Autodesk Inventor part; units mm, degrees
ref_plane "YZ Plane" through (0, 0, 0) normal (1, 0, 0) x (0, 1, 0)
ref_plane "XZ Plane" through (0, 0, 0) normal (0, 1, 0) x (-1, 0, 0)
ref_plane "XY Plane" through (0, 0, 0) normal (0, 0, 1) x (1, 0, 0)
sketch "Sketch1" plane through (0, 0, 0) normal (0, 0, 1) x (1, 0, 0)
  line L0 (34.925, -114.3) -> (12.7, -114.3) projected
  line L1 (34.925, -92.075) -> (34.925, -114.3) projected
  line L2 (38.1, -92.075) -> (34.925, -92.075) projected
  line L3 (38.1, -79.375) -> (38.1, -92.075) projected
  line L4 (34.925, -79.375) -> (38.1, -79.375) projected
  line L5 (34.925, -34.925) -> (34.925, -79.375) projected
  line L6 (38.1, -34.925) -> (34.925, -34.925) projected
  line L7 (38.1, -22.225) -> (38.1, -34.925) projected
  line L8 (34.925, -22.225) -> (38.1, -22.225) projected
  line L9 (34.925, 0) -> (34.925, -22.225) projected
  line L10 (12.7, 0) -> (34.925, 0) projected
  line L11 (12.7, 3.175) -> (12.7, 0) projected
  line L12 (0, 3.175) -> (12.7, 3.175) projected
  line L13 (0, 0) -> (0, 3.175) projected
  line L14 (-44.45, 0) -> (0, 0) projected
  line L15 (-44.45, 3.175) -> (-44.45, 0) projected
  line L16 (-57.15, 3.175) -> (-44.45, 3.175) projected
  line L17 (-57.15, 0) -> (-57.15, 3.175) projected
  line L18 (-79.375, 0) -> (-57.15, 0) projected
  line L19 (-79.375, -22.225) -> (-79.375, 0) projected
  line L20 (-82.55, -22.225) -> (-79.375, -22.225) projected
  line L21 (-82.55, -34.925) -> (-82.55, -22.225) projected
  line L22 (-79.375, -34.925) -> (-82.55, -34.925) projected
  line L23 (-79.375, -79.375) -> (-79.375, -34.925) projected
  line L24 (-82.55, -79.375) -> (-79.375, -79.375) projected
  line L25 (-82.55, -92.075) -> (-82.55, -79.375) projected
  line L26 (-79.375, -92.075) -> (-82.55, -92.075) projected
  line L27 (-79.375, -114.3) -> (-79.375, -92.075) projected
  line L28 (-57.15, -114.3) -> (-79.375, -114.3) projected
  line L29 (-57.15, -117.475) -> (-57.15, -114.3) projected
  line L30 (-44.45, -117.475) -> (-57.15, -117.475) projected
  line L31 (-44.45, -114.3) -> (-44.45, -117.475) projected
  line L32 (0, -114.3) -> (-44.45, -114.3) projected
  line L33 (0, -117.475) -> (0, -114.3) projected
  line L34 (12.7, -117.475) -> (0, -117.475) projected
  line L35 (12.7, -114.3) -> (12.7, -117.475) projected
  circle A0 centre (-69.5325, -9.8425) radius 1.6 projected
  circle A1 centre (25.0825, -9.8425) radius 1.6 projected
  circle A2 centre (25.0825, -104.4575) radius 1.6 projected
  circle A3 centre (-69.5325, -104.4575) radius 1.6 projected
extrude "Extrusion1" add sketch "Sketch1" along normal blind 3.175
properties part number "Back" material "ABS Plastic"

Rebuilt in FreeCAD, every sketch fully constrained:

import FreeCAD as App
import Part
import Sketcher

V = App.Vector
Q = App.Units.Quantity


def add_polygon(sketch, points):
    """Adds a closed chain of lines whose ends are joined by coincident constraints."""
    first, n = sketch.GeometryCount, len(points)
    for a, b in zip(points, points[1:] + points[:1]):
        sketch.addGeometry(Part.LineSegment(App.Vector(*a, 0), App.Vector(*b, 0)), False)
    for i in range(n):
        sketch.addConstraint(Sketcher.Constraint("Coincident", first + i, 2, first + (i + 1) % n, 1))

doc = App.newDocument("Part")
body = doc.addObject("PartDesign::Body", "Body")

# Sketch on XY plane
sketch1 = body.newObject("Sketcher::SketchObject", "Sketch")
sketch1.AttachmentSupport = (doc.getObject("XY_Plane"), [""])
sketch1.MapMode = "FlatFace"
add_polygon(sketch1, [(12.7, -114.3), (34.9, -114.3), (34.9, -92.1), (38.1, -92.1), (38.1, -79.4), (34.9, -79.4), (34.9, -34.9), (38.1, -34.9), (38.1, -22.2), (34.9, -22.2), (34.9, 0), (12.7, 0), (12.7, 3.2), (0, 3.2), (0, 0), (-44.5, 0), (-44.5, 3.2), (-57.1, 3.2), (-57.1, 0), (-79.4, 0), (-79.4, -22.2), (-82.5, -22.2), (-82.5, -34.9), (-79.4, -34.9), (-79.4, -79.4), (-82.5, -79.4), (-82.5, -92.1), (-79.4, -92.1), (-79.4, -114.3), (-57.1, -114.3), (-57.1, -117.5), (-44.5, -117.5), (-44.5, -114.3), (0, -114.3), (0, -117.5), (12.7, -117.5)])  # lines 0-35
sketch1.addGeometry(Part.Circle(V(-69.5, -104.5, 0), V(0, 0, 1), 1.6), False)  # 36
sketch1.addGeometry(Part.Circle(V(25.1, -104.5, 0), V(0, 0, 1), 1.6), False)  # 37
sketch1.addGeometry(Part.Circle(V(-69.5, -9.8, 0), V(0, 0, 1), 1.6), False)  # 38
sketch1.addGeometry(Part.Circle(V(25.1, -9.8, 0), V(0, 0, 1), 1.6), False)  # 39
sketch1.addConstraint(Sketcher.Constraint("Horizontal", 0))
sketch1.addConstraint(Sketcher.Constraint("Vertical", 1))
sketch1.addConstraint(Sketcher.Constraint("Horizontal", 2))
sketch1.addConstraint(Sketcher.Constraint("Vertical", 3))
sketch1.addConstraint(Sketcher.Constraint("Horizontal", 4))
sketch1.addConstraint(Sketcher.Constraint("Vertical", 5))
sketch1.addConstraint(Sketcher.Constraint("Horizontal", 6))
sketch1.addConstraint(Sketcher.Constraint("Vertical", 7))
sketch1.addConstraint(Sketcher.Constraint("Horizontal", 8))
sketch1.addConstraint(Sketcher.Constraint("Vertical", 9))
sketch1.addConstraint(Sketcher.Constraint("Horizontal", 10))
sketch1.addConstraint(Sketcher.Constraint("Vertical", 11))
sketch1.addConstraint(Sketcher.Constraint("Horizontal", 12))
sketch1.addConstraint(Sketcher.Constraint("Vertical", 13))
sketch1.addConstraint(Sketcher.Constraint("Horizontal", 14))
sketch1.addConstraint(Sketcher.Constraint("Vertical", 15))
sketch1.addConstraint(Sketcher.Constraint("Horizontal", 16))
sketch1.addConstraint(Sketcher.Constraint("Vertical", 17))
sketch1.addConstraint(Sketcher.Constraint("Horizontal", 18))
sketch1.addConstraint(Sketcher.Constraint("Vertical", 19))
sketch1.addConstraint(Sketcher.Constraint("Horizontal", 20))
sketch1.addConstraint(Sketcher.Constraint("Vertical", 21))
sketch1.addConstraint(Sketcher.Constraint("Horizontal", 22))
sketch1.addConstraint(Sketcher.Constraint("Vertical", 23))
sketch1.addConstraint(Sketcher.Constraint("Horizontal", 24))
sketch1.addConstraint(Sketcher.Constraint("Vertical", 25))
sketch1.addConstraint(Sketcher.Constraint("Horizontal", 26))
sketch1.addConstraint(Sketcher.Constraint("Vertical", 27))
sketch1.addConstraint(Sketcher.Constraint("Horizontal", 28))
sketch1.addConstraint(Sketcher.Constraint("Vertical", 29))
sketch1.addConstraint(Sketcher.Constraint("Horizontal", 30))
sketch1.addConstraint(Sketcher.Constraint("Vertical", 31))
sketch1.addConstraint(Sketcher.Constraint("Horizontal", 32))
sketch1.addConstraint(Sketcher.Constraint("Vertical", 33))
sketch1.addConstraint(Sketcher.Constraint("Horizontal", 34))
sketch1.addConstraint(Sketcher.Constraint("Vertical", 35))
sketch1.addConstraint(Sketcher.Constraint("Coincident", 13, 2, -1, 1))
sketch1.addConstraint(Sketcher.Constraint("Equal", 36, 37))
sketch1.addConstraint(Sketcher.Constraint("Equal", 37, 38))
sketch1.addConstraint(Sketcher.Constraint("Equal", 38, 39))
sketch1.addConstraint(Sketcher.Constraint("PointOnObject", 9, 2, -1))
sketch1.addConstraint(Sketcher.Constraint("PointOnObject", 17, 2, -1))
sketch1.addConstraint(Sketcher.Constraint("PointOnObject", 32, 2, -2))
sketch1.addConstraint(Sketcher.Constraint("Horizontal", 36, 3, 37, 3))
sketch1.addConstraint(Sketcher.Constraint("Horizontal", 38, 3, 39, 3))
sketch1.addConstraint(Sketcher.Constraint("Horizontal", 12, 2, 15, 2))
sketch1.addConstraint(Sketcher.Constraint("Horizontal", 8, 2, 19, 2))
sketch1.addConstraint(Sketcher.Constraint("Horizontal", 6, 2, 21, 2))
sketch1.addConstraint(Sketcher.Constraint("Horizontal", 4, 2, 23, 2))
sketch1.addConstraint(Sketcher.Constraint("Horizontal", 2, 2, 25, 2))
sketch1.addConstraint(Sketcher.Constraint("Horizontal", 0, 2, 27, 2))
sketch1.addConstraint(Sketcher.Constraint("Horizontal", 28, 2, 31, 2))
sketch1.addConstraint(Sketcher.Constraint("Horizontal", 30, 2, 33, 2))
sketch1.addConstraint(Sketcher.Constraint("Vertical", 36, 3, 38, 3))
sketch1.addConstraint(Sketcher.Constraint("Vertical", 37, 3, 39, 3))
sketch1.addConstraint(Sketcher.Constraint("Vertical", 1, 2, 4, 2))
sketch1.addConstraint(Sketcher.Constraint("Vertical", 3, 2, 6, 2))
sketch1.addConstraint(Sketcher.Constraint("Vertical", 5, 2, 8, 2))
sketch1.addConstraint(Sketcher.Constraint("Vertical", 19, 2, 22, 2))
sketch1.addConstraint(Sketcher.Constraint("Vertical", 21, 2, 24, 2))
sketch1.addConstraint(Sketcher.Constraint("Vertical", 23, 2, 26, 2))
sketch1.addConstraint(Sketcher.Constraint("Vertical", 17, 2, 28, 2))
sketch1.addConstraint(Sketcher.Constraint("Vertical", 15, 2, 30, 2))
sketch1.addConstraint(Sketcher.Constraint("Vertical", 11, 2, 34, 2))
sketch1.addConstraint(Sketcher.Constraint("Equal", 12, 16))
sketch1.addConstraint(Sketcher.Constraint("Equal", 10, 18))
sketch1.addConstraint(Sketcher.Constraint("Equal", 8, 20))
sketch1.addConstraint(Sketcher.Constraint("Equal", 28, 1))
sketch1.addConstraint(Sketcher.Constraint("Equal", 34, 3))
sketch1.addConstraint(Sketcher.Constraint("Equal", 32, 5))
sketch1.addConstraint(Sketcher.Constraint("Equal", 3, 7))
sketch1.addConstraint(Sketcher.Constraint("Equal", 1, 9))
sketch1.addConstraint(Sketcher.Constraint("Equal", 26, 11))
sketch1.addConstraint(Sketcher.Constraint("Equal", 17, 29))
sketch1.addConstraint(Sketcher.Constraint("DistanceX", 12, 2, 12, 1, Q("0.5 in")))
sketch1.addConstraint(Sketcher.Constraint("DistanceX", 10, 2, 7, 2, Q("1 in")))
sketch1.addConstraint(Sketcher.Constraint("DistanceX", 14, 2, 14, 1, Q("1.75 in")))
sketch1.addConstraint(Sketcher.Constraint("DistanceY", 0, 2, -1, 1, Q("4.5 in")))
sketch1.addConstraint(Sketcher.Constraint("Diameter", 36, Q("3.2 mm")))
sketch1.addConstraint(Sketcher.Constraint("DistanceX", 36, 3, 37, 3, Q("3.725 in")))
sketch1.addConstraint(Sketcher.Constraint("DistanceY", 36, 3, 38, 3, Q("3.725 in")))
sketch1.addConstraint(Sketcher.Constraint("DistanceX", 36, 3, -1, 1, Q("2.7375 in")))
sketch1.addConstraint(Sketcher.Constraint("DistanceY", 36, 3, -1, 1, Q("4.1125 in")))
pad1 = body.newObject("PartDesign::Pad", "Pad")
pad1.Profile = sketch1
pad1.Length = Q("0.125 in")

doc.recompute()
